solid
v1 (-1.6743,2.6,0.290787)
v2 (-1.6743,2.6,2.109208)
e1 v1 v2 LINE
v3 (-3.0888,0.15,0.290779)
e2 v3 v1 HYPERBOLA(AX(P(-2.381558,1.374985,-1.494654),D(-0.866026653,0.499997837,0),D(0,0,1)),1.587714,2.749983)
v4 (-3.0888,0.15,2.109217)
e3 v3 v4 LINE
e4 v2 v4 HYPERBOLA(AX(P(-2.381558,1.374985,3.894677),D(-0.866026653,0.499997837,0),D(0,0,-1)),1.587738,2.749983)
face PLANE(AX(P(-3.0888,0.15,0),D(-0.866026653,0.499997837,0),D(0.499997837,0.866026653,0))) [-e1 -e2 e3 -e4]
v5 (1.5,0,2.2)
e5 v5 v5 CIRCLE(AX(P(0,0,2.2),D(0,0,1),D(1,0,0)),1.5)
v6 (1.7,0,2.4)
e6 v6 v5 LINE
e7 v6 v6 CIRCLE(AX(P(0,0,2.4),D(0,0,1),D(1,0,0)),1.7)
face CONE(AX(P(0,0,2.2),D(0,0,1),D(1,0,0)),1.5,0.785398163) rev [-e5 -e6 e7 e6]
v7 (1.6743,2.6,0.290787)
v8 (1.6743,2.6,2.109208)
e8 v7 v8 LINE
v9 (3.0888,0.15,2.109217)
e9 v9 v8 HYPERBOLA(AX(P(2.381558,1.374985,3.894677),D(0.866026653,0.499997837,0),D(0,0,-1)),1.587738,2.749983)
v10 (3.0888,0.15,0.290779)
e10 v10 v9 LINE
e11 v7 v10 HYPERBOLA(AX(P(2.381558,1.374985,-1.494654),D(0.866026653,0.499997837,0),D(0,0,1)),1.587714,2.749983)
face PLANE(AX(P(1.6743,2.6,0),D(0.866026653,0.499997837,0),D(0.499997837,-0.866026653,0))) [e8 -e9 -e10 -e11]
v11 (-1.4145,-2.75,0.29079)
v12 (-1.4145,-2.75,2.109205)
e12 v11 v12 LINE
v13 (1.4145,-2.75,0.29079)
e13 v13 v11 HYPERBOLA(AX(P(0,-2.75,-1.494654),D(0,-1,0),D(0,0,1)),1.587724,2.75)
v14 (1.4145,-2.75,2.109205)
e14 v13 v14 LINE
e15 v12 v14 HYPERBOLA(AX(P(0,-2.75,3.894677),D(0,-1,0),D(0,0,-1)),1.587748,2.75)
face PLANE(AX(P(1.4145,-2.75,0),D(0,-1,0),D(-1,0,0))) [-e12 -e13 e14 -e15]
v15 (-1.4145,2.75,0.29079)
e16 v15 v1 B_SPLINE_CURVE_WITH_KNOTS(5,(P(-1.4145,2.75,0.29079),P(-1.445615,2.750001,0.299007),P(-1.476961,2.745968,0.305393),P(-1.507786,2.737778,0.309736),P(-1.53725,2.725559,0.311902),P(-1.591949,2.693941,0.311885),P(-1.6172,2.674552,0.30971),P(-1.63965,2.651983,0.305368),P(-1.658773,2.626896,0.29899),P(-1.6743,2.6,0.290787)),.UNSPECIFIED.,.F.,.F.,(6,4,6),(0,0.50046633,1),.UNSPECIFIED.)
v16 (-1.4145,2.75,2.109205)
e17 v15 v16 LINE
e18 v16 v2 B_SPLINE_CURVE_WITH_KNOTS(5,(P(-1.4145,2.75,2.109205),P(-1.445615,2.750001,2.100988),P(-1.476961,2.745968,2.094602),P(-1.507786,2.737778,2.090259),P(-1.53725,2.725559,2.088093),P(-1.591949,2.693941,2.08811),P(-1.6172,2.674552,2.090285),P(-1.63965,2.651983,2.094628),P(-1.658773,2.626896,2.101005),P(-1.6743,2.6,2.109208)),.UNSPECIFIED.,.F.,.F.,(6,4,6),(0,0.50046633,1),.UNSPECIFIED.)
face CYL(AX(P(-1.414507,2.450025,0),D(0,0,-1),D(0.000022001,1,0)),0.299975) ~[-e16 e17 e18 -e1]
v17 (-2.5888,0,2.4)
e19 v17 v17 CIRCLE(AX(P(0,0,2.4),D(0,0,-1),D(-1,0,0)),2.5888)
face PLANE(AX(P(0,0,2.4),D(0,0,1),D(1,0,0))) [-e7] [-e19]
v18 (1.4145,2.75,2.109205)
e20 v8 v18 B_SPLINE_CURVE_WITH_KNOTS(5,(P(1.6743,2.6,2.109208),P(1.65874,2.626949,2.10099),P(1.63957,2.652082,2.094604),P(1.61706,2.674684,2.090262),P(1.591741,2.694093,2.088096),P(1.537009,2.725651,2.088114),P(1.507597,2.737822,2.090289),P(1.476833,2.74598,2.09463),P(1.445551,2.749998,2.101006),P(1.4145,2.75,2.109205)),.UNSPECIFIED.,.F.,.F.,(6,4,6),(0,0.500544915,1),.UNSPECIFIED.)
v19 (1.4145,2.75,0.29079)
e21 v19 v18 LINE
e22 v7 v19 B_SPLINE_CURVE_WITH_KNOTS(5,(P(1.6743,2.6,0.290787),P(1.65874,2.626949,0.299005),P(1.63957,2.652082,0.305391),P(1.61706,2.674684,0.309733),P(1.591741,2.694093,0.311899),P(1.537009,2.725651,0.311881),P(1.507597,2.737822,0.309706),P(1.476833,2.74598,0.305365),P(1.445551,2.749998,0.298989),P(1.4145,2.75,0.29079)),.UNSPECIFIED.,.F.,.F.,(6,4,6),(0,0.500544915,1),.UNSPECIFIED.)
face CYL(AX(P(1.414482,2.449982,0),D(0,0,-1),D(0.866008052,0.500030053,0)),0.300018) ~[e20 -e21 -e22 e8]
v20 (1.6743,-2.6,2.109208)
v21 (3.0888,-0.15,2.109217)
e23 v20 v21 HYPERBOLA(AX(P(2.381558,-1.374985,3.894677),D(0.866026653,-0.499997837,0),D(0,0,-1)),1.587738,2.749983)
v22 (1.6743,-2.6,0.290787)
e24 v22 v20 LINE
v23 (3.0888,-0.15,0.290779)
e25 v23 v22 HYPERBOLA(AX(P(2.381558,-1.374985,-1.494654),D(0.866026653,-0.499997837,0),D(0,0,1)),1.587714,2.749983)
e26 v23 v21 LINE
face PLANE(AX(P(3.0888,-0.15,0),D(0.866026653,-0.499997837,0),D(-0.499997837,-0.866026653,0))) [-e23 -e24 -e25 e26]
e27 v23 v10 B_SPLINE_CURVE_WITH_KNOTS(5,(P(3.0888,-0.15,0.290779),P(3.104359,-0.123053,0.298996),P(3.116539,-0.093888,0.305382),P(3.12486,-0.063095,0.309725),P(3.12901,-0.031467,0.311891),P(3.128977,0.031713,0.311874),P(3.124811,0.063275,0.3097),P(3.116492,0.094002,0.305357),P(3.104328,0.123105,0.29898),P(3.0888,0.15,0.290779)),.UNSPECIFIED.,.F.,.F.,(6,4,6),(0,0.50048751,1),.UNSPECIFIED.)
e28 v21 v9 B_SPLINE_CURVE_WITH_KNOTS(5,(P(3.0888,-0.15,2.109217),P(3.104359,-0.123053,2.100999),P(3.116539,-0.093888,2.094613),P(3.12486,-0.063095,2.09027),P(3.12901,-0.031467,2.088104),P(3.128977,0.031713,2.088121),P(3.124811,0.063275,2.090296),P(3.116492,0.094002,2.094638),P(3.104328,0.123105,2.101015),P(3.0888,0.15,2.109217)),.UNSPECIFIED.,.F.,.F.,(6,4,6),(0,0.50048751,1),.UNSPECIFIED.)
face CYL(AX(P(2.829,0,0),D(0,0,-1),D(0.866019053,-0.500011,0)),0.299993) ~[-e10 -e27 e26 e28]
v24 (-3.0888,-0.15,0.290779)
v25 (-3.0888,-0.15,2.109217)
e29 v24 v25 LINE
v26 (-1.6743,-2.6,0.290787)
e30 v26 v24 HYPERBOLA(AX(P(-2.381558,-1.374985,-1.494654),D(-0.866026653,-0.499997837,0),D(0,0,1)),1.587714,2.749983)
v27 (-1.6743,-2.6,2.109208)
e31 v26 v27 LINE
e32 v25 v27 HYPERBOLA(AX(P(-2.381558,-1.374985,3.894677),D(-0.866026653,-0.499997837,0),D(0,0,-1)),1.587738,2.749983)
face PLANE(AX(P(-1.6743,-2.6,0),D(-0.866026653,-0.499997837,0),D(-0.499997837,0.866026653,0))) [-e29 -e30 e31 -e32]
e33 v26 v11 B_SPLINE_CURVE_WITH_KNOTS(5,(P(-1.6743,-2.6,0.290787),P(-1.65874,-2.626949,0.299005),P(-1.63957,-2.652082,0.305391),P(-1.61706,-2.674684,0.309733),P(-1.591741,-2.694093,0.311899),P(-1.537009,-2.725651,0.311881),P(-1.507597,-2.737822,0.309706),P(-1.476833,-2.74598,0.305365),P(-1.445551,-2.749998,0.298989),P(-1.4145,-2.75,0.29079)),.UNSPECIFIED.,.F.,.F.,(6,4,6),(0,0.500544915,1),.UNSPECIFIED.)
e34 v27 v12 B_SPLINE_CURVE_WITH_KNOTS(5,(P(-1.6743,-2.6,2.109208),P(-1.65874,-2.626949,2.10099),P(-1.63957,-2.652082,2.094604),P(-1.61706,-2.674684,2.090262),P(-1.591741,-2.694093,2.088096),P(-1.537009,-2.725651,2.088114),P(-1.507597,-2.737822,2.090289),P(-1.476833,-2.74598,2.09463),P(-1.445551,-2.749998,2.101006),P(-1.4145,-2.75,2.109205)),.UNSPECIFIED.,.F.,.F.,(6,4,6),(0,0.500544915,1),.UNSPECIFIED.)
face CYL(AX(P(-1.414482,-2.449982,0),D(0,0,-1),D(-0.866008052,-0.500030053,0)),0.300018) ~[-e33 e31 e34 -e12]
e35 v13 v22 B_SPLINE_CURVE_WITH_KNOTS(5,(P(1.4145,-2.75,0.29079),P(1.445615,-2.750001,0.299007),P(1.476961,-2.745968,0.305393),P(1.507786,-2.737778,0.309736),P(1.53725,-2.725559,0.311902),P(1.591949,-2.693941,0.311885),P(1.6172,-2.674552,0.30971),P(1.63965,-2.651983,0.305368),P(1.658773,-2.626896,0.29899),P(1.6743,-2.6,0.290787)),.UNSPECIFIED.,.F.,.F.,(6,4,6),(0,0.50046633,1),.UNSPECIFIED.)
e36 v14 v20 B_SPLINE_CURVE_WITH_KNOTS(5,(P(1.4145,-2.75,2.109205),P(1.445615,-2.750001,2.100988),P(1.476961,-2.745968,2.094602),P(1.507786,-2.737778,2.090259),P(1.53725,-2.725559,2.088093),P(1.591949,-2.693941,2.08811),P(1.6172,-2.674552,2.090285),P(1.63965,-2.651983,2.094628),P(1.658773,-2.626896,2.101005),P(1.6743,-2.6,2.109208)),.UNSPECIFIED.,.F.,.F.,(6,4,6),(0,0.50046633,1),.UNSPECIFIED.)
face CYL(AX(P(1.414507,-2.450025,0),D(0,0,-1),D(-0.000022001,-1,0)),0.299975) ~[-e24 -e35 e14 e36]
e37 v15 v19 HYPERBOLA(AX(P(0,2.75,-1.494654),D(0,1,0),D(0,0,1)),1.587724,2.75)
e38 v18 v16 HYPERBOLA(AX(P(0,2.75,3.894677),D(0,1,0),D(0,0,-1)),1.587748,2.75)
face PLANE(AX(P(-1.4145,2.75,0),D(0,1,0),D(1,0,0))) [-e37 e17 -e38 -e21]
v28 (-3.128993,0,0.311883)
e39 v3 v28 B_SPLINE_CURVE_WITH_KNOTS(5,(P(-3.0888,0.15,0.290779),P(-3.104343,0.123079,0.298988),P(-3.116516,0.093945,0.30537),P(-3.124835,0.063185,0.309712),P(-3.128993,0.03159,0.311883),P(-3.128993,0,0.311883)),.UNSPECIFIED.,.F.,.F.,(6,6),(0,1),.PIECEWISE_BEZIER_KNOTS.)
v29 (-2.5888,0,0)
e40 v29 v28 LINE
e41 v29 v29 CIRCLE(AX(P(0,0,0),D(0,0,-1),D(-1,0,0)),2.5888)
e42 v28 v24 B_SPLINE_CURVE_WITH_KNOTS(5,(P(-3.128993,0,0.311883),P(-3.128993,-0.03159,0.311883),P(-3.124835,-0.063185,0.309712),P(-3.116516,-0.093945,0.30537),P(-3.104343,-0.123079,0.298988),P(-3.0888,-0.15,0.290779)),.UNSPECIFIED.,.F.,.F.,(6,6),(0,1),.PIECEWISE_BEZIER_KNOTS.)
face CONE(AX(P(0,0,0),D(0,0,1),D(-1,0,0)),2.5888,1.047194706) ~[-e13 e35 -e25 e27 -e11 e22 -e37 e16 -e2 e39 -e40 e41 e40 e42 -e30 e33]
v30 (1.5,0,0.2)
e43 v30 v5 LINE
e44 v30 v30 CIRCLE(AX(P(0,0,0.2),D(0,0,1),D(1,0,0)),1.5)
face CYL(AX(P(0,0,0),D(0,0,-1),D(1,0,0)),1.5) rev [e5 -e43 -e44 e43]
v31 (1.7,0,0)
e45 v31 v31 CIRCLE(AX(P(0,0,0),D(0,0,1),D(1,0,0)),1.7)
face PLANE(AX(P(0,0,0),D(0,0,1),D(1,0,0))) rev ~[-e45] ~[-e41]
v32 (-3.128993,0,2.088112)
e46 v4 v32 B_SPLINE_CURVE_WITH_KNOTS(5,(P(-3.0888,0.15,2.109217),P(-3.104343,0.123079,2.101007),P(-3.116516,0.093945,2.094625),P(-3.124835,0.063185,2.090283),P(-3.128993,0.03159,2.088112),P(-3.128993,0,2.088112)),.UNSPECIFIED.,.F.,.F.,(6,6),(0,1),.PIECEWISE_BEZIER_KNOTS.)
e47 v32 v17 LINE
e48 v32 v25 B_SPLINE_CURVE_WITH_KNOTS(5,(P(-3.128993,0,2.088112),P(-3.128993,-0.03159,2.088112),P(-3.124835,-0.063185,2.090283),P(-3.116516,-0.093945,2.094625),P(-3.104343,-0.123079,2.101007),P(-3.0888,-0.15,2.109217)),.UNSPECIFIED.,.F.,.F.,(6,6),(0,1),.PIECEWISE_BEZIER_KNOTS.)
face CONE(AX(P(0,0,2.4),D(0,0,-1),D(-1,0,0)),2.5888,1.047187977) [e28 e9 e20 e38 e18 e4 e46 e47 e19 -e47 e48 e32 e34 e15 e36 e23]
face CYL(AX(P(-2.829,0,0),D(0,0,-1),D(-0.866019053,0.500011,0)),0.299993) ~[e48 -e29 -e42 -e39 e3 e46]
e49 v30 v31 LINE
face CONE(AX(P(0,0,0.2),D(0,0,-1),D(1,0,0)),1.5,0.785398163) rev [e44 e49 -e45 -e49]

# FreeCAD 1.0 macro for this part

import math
import FreeCAD as App
import Part
import Sketcher
Q = App.Units.Quantity


def edges_at(feature, points):
    """Names of the edges that pass closest to the given points."""
    edges = feature.Shape.Edges
    near = lambda p: min(range(len(edges)), key=lambda i: edges[i].distToShape(Part.Vertex(*p))[0])
    return sorted({f"Edge{near(p) + 1}" for p in points})


def add_polygon(sketch, points):
    """Adds a closed chain of lines whose ends are joined by coincident constraints."""
    first, n = sketch.GeometryCount, len(points)
    for a, b in zip(points, points[1:] + points[:1]):
        sketch.addGeometry(Part.LineSegment(App.Vector(*a, 0), App.Vector(*b, 0)), False)
    for i in range(n):
        sketch.addConstraint(Sketcher.Constraint("Coincident", first + i, 2, first + (i + 1) % n, 1))

doc = App.newDocument("Part")
body = doc.addObject("PartDesign::Body", "Body")

sketch1 = body.newObject("Sketcher::SketchObject", "Sketch")
sketch1.AttachmentSupport = (doc.getObject("XY_Plane"), [""])
sketch1.MapMode = "FlatFace"
sketch1.addGeometry([
    Part.LineSegment(App.Vector(-1.6743, 2.6, 0), App.Vector(-3.0888, 0.15, 0)),
    Part.ArcOfCircle(Part.Circle(App.Vector(-2.829, 0, 0), App.Vector(0, 0, 1), 0.299993), math.radians(149.999272), math.radians(210.000728)),
    Part.LineSegment(App.Vector(-3.0888, -0.15, 0), App.Vector(-1.6743, -2.6, 0)),
    Part.ArcOfCircle(Part.Circle(App.Vector(-1.4145, -2.45, 0), App.Vector(0, 0, 1), 0.299993), math.radians(-149.999272), math.radians(-90)),
    Part.LineSegment(App.Vector(-1.4145, -2.75, 0), App.Vector(1.4145, -2.75, 0)),
    Part.ArcOfCircle(Part.Circle(App.Vector(1.4145, -2.45, 0), App.Vector(0, 0, 1), 0.3), math.radians(-90), math.radians(-30.000728)),
    Part.LineSegment(App.Vector(1.6743, -2.6, 0), App.Vector(3.0888, -0.15, 0)),
    Part.ArcOfCircle(Part.Circle(App.Vector(2.829, 0, 0), App.Vector(0, 0, 1), 0.299993), math.radians(-30.000728), math.radians(30.000728)),
    Part.LineSegment(App.Vector(3.0888, 0.15, 0), App.Vector(1.6743, 2.6, 0)),
    Part.ArcOfCircle(Part.Circle(App.Vector(1.4145, 2.45, 0), App.Vector(0, 0, 1), 0.299993), math.radians(30.000728), math.radians(90)),
    Part.LineSegment(App.Vector(1.4145, 2.75, 0), App.Vector(-1.4145, 2.75, 0)),
    Part.ArcOfCircle(Part.Circle(App.Vector(-1.4145, 2.45, 0), App.Vector(0, 0, 1), 0.3), math.radians(90), math.radians(149.999272)),
    Part.Circle(App.Vector(0, 0, 0), App.Vector(0, 0, 1), 1.5),
], False)
sketch1.addConstraint([
    Sketcher.Constraint("Tangent", 0, 2, 1, 1),
    Sketcher.Constraint("Tangent", 1, 2, 2, 1),
    Sketcher.Constraint("Tangent", 2, 2, 3, 1),
    Sketcher.Constraint("Tangent", 3, 2, 4, 1),
    Sketcher.Constraint("Tangent", 4, 2, 5, 1),
    Sketcher.Constraint("Tangent", 5, 2, 6, 1),
    Sketcher.Constraint("Tangent", 6, 2, 7, 1),
    Sketcher.Constraint("Tangent", 7, 2, 8, 1),
    Sketcher.Constraint("Tangent", 8, 2, 9, 1),
    Sketcher.Constraint("Tangent", 9, 2, 10, 1),
    Sketcher.Constraint("Tangent", 10, 2, 11, 1),
    Sketcher.Constraint("Tangent", 11, 2, 0, 1),
    Sketcher.Constraint("Horizontal", 4),
    Sketcher.Constraint("Horizontal", 10),
    Sketcher.Constraint("Coincident", 12, 3, -1, 1),
    Sketcher.Constraint("Equal", 1, 3),
    Sketcher.Constraint("Equal", 3, 5),
    Sketcher.Constraint("Equal", 5, 7),
    Sketcher.Constraint("Equal", 7, 9),
    Sketcher.Constraint("Equal", 9, 11),
    Sketcher.Constraint("Symmetric", 1, 3, 7, 3, -1, 1),
    Sketcher.Constraint("Symmetric", 3, 3, 9, 3, -1, 1),
    Sketcher.Constraint("Symmetric", 2, 2, 5, 2, -2),
    Sketcher.Constraint("Parallel", 0, 6),
    Sketcher.Constraint("Diameter", 12, 3.0),
    Sketcher.Constraint("Radius", 1, 0.3),
    Sketcher.Constraint("DistanceY", 1, 2, 0, 2, 0.3),
    Sketcher.Constraint("DistanceY", 2, 2, -1, 1, 2.6),
    Sketcher.Constraint("DistanceX", 4, 1, 4, 2, 2.829),
])
pad1 = body.newObject("PartDesign::Pad", "Pad")
pad1.Profile = sketch1
pad1.Length = 2.4

sketch2 = body.newObject("Sketcher::SketchObject", "Sketch001")
sketch2.AttachmentSupport = (doc.getObject("XZ_Plane"), [""])
sketch2.MapMode = "FlatFace"
add_polygon(sketch2, [(-2.5888, 3.518), (-2.5888, 2.4), (-4.0837, 1.5369), (-4.0837, 3.518)])
add_polygon(sketch2, [(-2.5888, 0), (-2.5888, -0.6301), (-4.2933, -0.6301), (-4.2933, 0.9841)])
sketch2.addConstraint([
    Sketcher.Constraint("Vertical", 0),
    Sketcher.Constraint("Vertical", 2),
    Sketcher.Constraint("Horizontal", 3),
    Sketcher.Constraint("Vertical", 4),
    Sketcher.Constraint("Horizontal", 5),
    Sketcher.Constraint("Vertical", 6),
    Sketcher.Constraint("PointOnObject", 7, 2, -1),
    Sketcher.Constraint("Vertical", 3, 2, 4, 2),
    Sketcher.Constraint("Angle", 7, Q("-30.0002 deg")),
    Sketcher.Constraint("Angle", 1, Q("-149.9995 deg")),
    Sketcher.Constraint("DistanceY", 4, 2, 4, 1, 0.63),
    Sketcher.Constraint("DistanceY", -1, 1, 0, 2, 2.4),
    Sketcher.Constraint("DistanceX", 3, 1, 3, 2, 1.495),
    Sketcher.Constraint("DistanceY", 0, 2, 0, 1, 1.118),
    Sketcher.Constraint("DistanceX", 5, 2, 5, 1, 1.7045),
    Sketcher.Constraint("DistanceX", 0, 2, -1, 1, 2.5888),
])
groove = body.newObject("PartDesign::Groove", "Groove")
groove.Profile = sketch2
groove.ReferenceAxis = (sketch2, ["V_Axis"])
groove.Angle = 360
doc.recompute()

chamfer = body.newObject("PartDesign::Chamfer", "Chamfer")
chamfer.Base = (groove, edges_at(groove, [(-1.5, 0, 2.4)]))
chamfer.Size = 0.2
doc.recompute()

chamfer2 = body.newObject("PartDesign::Chamfer", "Chamfer001")
chamfer2.Base = (chamfer, edges_at(chamfer, [(-1.5, 0, 0)]))
chamfer2.Size = 0.2

doc.recompute()
